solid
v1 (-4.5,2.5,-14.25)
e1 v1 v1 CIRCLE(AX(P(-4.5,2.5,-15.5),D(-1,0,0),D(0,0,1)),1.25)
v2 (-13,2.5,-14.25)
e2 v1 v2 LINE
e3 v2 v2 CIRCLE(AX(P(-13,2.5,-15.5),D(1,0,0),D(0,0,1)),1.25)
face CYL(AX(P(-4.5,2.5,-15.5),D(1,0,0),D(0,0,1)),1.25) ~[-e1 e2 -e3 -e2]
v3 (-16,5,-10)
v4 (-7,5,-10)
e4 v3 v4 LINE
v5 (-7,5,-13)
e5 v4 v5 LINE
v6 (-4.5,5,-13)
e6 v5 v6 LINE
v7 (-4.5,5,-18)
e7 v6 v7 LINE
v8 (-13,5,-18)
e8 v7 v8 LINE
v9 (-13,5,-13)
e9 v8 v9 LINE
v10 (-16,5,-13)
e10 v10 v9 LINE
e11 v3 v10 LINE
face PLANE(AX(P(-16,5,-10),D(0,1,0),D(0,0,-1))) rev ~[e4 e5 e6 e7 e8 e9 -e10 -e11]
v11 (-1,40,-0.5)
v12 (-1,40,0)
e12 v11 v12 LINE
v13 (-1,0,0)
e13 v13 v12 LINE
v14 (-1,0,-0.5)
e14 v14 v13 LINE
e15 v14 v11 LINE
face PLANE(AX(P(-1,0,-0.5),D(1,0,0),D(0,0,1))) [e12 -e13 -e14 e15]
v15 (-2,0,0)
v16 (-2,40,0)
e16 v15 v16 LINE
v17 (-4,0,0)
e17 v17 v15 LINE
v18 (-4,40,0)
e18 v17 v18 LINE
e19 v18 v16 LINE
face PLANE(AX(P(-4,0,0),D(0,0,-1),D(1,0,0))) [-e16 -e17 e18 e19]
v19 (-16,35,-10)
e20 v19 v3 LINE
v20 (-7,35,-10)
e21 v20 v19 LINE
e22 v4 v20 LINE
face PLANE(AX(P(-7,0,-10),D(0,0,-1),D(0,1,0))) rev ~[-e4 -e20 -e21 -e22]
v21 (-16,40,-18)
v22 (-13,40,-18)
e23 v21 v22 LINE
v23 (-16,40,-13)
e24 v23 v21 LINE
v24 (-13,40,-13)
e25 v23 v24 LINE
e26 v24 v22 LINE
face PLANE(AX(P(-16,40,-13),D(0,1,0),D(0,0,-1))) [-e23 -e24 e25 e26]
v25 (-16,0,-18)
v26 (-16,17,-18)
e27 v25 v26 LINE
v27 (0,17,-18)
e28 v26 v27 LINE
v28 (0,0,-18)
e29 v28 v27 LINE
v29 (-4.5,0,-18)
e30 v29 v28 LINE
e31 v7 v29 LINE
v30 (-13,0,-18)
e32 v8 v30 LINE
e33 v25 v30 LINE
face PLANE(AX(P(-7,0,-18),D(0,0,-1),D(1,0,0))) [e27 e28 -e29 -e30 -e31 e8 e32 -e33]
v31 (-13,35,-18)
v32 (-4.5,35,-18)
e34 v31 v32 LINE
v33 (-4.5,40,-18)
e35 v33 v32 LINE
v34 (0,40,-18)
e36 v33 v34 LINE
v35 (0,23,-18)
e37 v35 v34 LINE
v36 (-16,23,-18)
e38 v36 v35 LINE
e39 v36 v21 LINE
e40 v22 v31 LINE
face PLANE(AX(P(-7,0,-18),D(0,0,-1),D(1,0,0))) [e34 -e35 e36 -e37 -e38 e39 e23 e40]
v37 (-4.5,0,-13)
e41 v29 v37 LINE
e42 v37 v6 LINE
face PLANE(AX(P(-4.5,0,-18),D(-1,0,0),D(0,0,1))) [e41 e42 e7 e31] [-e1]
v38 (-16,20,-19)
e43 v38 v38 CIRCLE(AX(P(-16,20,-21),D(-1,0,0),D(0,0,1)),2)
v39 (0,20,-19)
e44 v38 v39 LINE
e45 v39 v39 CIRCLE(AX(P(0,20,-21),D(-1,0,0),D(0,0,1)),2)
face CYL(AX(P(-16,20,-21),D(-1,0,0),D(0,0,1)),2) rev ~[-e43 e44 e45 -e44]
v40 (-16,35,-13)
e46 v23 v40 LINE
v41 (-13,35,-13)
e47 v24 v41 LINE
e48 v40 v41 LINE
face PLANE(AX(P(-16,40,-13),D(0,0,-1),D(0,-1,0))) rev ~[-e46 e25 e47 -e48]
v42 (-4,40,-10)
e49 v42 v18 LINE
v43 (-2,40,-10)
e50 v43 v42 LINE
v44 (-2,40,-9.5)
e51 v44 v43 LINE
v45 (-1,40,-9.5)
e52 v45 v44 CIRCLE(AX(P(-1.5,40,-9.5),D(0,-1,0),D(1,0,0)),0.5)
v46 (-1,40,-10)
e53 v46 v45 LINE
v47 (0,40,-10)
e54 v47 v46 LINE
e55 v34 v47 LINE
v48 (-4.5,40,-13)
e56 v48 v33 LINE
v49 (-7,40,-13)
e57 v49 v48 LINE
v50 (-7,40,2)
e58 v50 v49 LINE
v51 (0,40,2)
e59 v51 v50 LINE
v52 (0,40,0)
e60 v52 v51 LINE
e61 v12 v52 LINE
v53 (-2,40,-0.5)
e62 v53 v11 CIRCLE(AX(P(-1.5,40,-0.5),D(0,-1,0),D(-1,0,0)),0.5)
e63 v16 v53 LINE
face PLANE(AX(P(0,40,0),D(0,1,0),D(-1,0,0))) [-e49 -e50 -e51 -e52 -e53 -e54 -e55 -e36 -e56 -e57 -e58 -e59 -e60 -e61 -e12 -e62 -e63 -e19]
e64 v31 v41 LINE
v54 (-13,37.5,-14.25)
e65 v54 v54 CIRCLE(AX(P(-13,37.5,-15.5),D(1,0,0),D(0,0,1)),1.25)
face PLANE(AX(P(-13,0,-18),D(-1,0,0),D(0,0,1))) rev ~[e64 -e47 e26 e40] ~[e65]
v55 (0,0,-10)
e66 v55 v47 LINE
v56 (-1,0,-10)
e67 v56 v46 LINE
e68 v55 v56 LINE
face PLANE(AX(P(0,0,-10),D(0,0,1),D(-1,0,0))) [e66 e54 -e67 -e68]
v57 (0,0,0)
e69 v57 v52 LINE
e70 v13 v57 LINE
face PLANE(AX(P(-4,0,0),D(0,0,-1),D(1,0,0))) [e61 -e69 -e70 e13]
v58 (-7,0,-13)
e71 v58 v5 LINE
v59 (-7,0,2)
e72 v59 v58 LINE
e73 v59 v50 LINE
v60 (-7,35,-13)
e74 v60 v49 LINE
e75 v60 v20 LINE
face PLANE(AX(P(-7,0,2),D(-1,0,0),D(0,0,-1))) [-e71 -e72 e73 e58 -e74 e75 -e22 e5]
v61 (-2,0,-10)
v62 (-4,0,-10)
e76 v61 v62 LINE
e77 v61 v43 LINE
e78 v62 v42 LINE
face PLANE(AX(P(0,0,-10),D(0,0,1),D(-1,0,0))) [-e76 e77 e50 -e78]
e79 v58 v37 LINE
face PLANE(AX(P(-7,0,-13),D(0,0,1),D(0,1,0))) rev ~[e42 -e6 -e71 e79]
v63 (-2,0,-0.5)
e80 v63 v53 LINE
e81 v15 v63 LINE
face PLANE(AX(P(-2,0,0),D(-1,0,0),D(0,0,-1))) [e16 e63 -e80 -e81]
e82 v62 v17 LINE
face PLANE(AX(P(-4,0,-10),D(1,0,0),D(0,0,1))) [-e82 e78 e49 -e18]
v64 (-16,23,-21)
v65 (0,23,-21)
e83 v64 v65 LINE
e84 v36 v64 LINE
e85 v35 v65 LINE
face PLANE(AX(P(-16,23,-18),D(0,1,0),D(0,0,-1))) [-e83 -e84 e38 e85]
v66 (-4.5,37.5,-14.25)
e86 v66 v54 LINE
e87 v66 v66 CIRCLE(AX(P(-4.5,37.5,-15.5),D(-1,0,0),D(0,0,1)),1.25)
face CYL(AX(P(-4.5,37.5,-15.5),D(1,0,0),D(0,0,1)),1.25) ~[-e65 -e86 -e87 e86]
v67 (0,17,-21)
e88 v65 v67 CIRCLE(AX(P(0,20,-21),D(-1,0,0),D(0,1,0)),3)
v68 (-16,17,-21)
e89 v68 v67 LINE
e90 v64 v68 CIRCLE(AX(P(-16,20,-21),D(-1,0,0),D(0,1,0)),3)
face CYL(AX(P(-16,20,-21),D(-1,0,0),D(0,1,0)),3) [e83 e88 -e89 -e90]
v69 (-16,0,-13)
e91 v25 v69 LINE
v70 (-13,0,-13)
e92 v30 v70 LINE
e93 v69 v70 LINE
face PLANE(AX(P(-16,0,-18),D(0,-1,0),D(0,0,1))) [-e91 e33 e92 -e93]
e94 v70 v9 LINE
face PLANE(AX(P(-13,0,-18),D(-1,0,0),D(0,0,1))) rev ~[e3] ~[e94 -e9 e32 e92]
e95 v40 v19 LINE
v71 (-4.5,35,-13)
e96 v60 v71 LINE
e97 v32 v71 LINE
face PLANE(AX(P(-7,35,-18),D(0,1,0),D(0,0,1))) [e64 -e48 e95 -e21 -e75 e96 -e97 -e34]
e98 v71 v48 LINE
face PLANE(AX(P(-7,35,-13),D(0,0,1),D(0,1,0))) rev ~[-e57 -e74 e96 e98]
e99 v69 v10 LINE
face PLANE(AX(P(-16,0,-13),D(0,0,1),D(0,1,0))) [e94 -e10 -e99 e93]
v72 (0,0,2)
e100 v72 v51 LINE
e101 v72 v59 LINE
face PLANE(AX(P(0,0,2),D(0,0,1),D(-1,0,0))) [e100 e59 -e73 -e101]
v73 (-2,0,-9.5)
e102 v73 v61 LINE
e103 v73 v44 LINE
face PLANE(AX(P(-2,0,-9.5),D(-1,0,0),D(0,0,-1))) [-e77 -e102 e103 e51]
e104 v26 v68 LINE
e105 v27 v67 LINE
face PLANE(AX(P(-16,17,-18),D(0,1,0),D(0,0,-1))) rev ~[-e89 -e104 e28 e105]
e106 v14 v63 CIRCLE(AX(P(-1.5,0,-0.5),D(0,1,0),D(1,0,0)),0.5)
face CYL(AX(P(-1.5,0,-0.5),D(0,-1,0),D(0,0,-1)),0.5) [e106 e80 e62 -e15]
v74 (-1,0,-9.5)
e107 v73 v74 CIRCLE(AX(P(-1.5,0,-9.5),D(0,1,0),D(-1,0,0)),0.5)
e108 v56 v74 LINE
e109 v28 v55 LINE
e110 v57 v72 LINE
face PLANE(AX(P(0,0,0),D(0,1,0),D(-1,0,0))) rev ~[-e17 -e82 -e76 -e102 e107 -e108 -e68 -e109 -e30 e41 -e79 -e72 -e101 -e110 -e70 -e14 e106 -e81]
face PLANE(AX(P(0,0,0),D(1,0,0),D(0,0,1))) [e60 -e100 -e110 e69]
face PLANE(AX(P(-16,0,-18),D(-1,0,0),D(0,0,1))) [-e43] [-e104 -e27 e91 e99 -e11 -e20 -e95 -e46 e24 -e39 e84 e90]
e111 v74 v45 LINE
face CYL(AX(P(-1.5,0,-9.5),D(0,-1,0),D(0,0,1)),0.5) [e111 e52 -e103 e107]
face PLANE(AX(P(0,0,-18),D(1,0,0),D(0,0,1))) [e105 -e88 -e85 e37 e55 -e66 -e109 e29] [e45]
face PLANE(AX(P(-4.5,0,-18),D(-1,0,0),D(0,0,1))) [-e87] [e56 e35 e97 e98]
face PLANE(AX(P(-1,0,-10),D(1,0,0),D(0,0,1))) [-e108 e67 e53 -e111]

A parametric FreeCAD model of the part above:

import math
import FreeCAD as App
import Part
import Sketcher
from FreeCAD import Vector
Q = App.Units.Quantity

doc = App.newDocument("Part")
body = doc.addObject("PartDesign::Body", "Body")

sketch1 = doc.addObject("Sketcher::SketchObject", "Sketch")
body.addObject(sketch1)
sketch1.AttachmentSupport = (doc.XZ_Plane, [""])
sketch1.MapMode = "FlatFace"
sketch1.addGeometry([
    Part.LineSegment(Vector(0, 2, 0), Vector(0, 0, 0)),
    Part.LineSegment(Vector(0, 0, 0), Vector(-4, 0, 0)),
    Part.LineSegment(Vector(-4, 0, 0), Vector(-4, -10, 0)),
    Part.LineSegment(Vector(-4, -10, 0), Vector(0, -10, 0)),
    Part.LineSegment(Vector(0, -10, 0), Vector(0, -18, 0)),
    Part.LineSegment(Vector(0, -18, 0), Vector(-7, -18, 0)),
    Part.LineSegment(Vector(-7, -18, 0), Vector(-7, 2, 0)),
    Part.LineSegment(Vector(-7, 2, 0), Vector(0, 2, 0)),
], False)
sketch1.addConstraint([
    Sketcher.Constraint("Coincident", 0, 2, 1, 1),
    Sketcher.Constraint("Coincident", 1, 2, 2, 1),
    Sketcher.Constraint("Coincident", 2, 2, 3, 1),
    Sketcher.Constraint("Coincident", 3, 2, 4, 1),
    Sketcher.Constraint("Coincident", 4, 2, 5, 1),
    Sketcher.Constraint("Coincident", 5, 2, 6, 1),
    Sketcher.Constraint("Coincident", 6, 2, 7, 1),
    Sketcher.Constraint("Coincident", 7, 2, 0, 1),
    Sketcher.Constraint("Vertical", 0),
    Sketcher.Constraint("Horizontal", 1),
    Sketcher.Constraint("Vertical", 2),
    Sketcher.Constraint("Horizontal", 3),
    Sketcher.Constraint("Vertical", 4),
    Sketcher.Constraint("Horizontal", 5),
    Sketcher.Constraint("Vertical", 6),
    Sketcher.Constraint("Horizontal", 7),
    Sketcher.Constraint("Coincident", 0, 2, -1, 1),
    Sketcher.Constraint("PointOnObject", 3, 2, -2),
    Sketcher.Constraint("DistanceX", 1, 2, 1, 1, Q("4 mm")),
    Sketcher.Constraint("DistanceX", 5, 2, 5, 1, Q("7 mm")),
    Sketcher.Constraint("DistanceY", 0, 2, 0, 1, Q("2 mm")),
    Sketcher.Constraint("DistanceY", 2, 2, 2, 1, Q("10 mm")),
    Sketcher.Constraint("DistanceY", 4, 2, 4, 1, Q("8 mm")),
])
pad1 = doc.addObject("PartDesign::Pad", "Pad")
body.addObject(pad1)
pad1.Profile = sketch1
pad1.Length = 40
pad1.Reversed = True

sketch2 = doc.addObject("Sketcher::SketchObject", "Sketch001")
body.addObject(sketch2)
sketch2.AttachmentSupport = (doc.XZ_Plane, [""])
sketch2.MapMode = "FlatFace"
sketch2.addGeometry([
    Part.LineSegment(Vector(-2, -10, 0), Vector(-1, -10, 0)),
    Part.LineSegment(Vector(-1, -10, 0), Vector(-1, -9.5, 0)),
    Part.ArcOfCircle(Part.Circle(Vector(-1.5, -9.5, 0), Vector(0, 0, 1), 0.5), math.radians(0), math.radians(180)),
    Part.LineSegment(Vector(-2, -9.5, 0), Vector(-2, -10, 0)),
    Part.ArcOfCircle(Part.Circle(Vector(-1.5, -0.5, 0), Vector(0, 0, 1), 0.5), math.radians(180), math.radians(360)),
    Part.LineSegment(Vector(-1, -0.5, 0), Vector(-1, 0, 0)),
    Part.LineSegment(Vector(-1, 0, 0), Vector(-2, 0, 0)),
    Part.LineSegment(Vector(-2, 0, 0), Vector(-2, -0.5, 0)),
], False)
sketch2.addConstraint([
    Sketcher.Constraint("Coincident", 0, 2, 1, 1),
    Sketcher.Constraint("Tangent", 1, 2, 2, 1),
    Sketcher.Constraint("Tangent", 2, 2, 3, 1),
    Sketcher.Constraint("Coincident", 3, 2, 0, 1),
    Sketcher.Constraint("Tangent", 4, 2, 5, 1),
    Sketcher.Constraint("Coincident", 5, 2, 6, 1),
    Sketcher.Constraint("Coincident", 6, 2, 7, 1),
    Sketcher.Constraint("Tangent", 7, 2, 4, 1),
    Sketcher.Constraint("Horizontal", 0),
    Sketcher.Constraint("Vertical", 1),
    Sketcher.Constraint("Vertical", 3),
    Sketcher.Constraint("Vertical", 5),
    Sketcher.Constraint("Horizontal", 6),
    Sketcher.Constraint("Vertical", 7),
    Sketcher.Constraint("Equal", 2, 4),
    Sketcher.Constraint("PointOnObject", 5, 2, -1),
    Sketcher.Constraint("Vertical", 2, 3, 4, 3),
    Sketcher.Constraint("Equal", 3, 5),
    Sketcher.Constraint("Radius", 2, Q("0.5 mm")),
    Sketcher.Constraint("DistanceY", 1, 1, 1, 2, Q("0.5 mm")),
    Sketcher.Constraint("DistanceX", 0, 2, -1, 1, Q("1 mm")),
    Sketcher.Constraint("DistanceY", 0, 2, -1, 1, Q("10 mm")),
])
pad2 = doc.addObject("PartDesign::Pad", "Pad001")
body.addObject(pad2)
pad2.Profile = sketch2
pad2.Length = 40
pad2.Reversed = True

sketch3 = doc.addObject("Sketcher::SketchObject", "Sketch002")
body.addObject(sketch3)
sketch3.AttachmentSupport = (doc.YZ_Plane, [""])
sketch3.MapMode = "FlatFace"
sketch3.AttachmentOffset = App.Placement(Vector(0, 0, -7), App.Rotation())
sketch3.addGeometry([
    Part.LineSegment(Vector(0, -18, 0), Vector(0, -10, 0)),
    Part.LineSegment(Vector(0, -10, 0), Vector(35, -10, 0)),
    Part.LineSegment(Vector(35, -10, 0), Vector(35, -18, 0)),
    Part.LineSegment(Vector(35, -18, 0), Vector(0, -18, 0)),
], False)
sketch3.addConstraint([
    Sketcher.Constraint("Coincident", 0, 2, 1, 1),
    Sketcher.Constraint("Coincident", 1, 2, 2, 1),
    Sketcher.Constraint("Coincident", 2, 2, 3, 1),
    Sketcher.Constraint("Coincident", 3, 2, 0, 1),
    Sketcher.Constraint("Vertical", 0),
    Sketcher.Constraint("Horizontal", 1),
    Sketcher.Constraint("Vertical", 2),
    Sketcher.Constraint("Horizontal", 3),
    Sketcher.Constraint("PointOnObject", 0, 2, -2),
    Sketcher.Constraint("DistanceX", 1, 1, 1, 2, Q("35 mm")),
    Sketcher.Constraint("DistanceY", 0, 1, 0, 2, Q("8 mm")),
    Sketcher.Constraint("DistanceY", 0, 2, -1, 1, Q("10 mm")),
])
pad3 = doc.addObject("PartDesign::Pad", "Pad002")
body.addObject(pad3)
pad3.Profile = sketch3
pad3.Length = 9
pad3.Reversed = True

sketch4 = doc.addObject("Sketcher::SketchObject", "Sketch003")
body.addObject(sketch4)
sketch4.AttachmentSupport = (doc.YZ_Plane, [""])
sketch4.MapMode = "FlatFace"
sketch4.AttachmentOffset = App.Placement(Vector(0, 0, -16), App.Rotation())
sketch4.addGeometry([
    Part.LineSegment(Vector(17, -21, 0), Vector(17, -18, 0)),
    Part.LineSegment(Vector(17, -18, 0), Vector(23, -18, 0)),
    Part.LineSegment(Vector(23, -18, 0), Vector(23, -21, 0)),
    Part.ArcOfCircle(Part.Circle(Vector(20, -21, 0), Vector(0, 0, 1), 3), math.radians(180), math.radians(360)),
    Part.Circle(Vector(20, -21, 0), Vector(0, 0, 1), 2),
], False)
sketch4.addConstraint([
    Sketcher.Constraint("Coincident", 0, 2, 1, 1),
    Sketcher.Constraint("Coincident", 1, 2, 2, 1),
    Sketcher.Constraint("Tangent", 2, 2, 3, 2),
    Sketcher.Constraint("Tangent", 3, 1, 0, 1),
    Sketcher.Constraint("Vertical", 0),
    Sketcher.Constraint("Horizontal", 1),
    Sketcher.Constraint("Vertical", 2),
    Sketcher.Constraint("Coincident", 4, 3, 3, 3),
    Sketcher.Constraint("Diameter", 4, Q("4 mm")),
    Sketcher.Constraint("Radius", 3, Q("3 mm")),
    Sketcher.Constraint("DistanceY", 0, 1, 0, 2, Q("3 mm")),
    Sketcher.Constraint("DistanceX", -1, 1, 0, 2, Q("17 mm")),
    Sketcher.Constraint("DistanceY", 3, 3, -1, 1, Q("21 mm")),
])
pad4 = doc.addObject("PartDesign::Pad", "Pad003")
body.addObject(pad4)
pad4.Profile = sketch4
pad4.Length = 16

sketch5 = doc.addObject("Sketcher::SketchObject", "Sketch004")
body.addObject(sketch5)
sketch5.AttachmentSupport = (doc.YZ_Plane, [""])
sketch5.MapMode = "FlatFace"
sketch5.AttachmentOffset = App.Placement(Vector(0, 0, -7), App.Rotation())
sketch5.addGeometry([
    Part.LineSegment(Vector(5, -18, 0), Vector(0, -18, 0)),
    Part.LineSegment(Vector(0, -18, 0), Vector(0, -13, 0)),
    Part.LineSegment(Vector(0, -13, 0), Vector(5, -13, 0)),
    Part.LineSegment(Vector(5, -13, 0), Vector(5, -18, 0)),
    Part.LineSegment(Vector(40, -18, 0), Vector(35, -18, 0)),
    Part.LineSegment(Vector(35, -18, 0), Vector(35, -13, 0)),
    Part.LineSegment(Vector(35, -13, 0), Vector(40, -13, 0)),
    Part.LineSegment(Vector(40, -13, 0), Vector(40, -18, 0)),
], False)
sketch5.addConstraint([
    Sketcher.Constraint("Coincident", 0, 2, 1, 1),
    Sketcher.Constraint("Coincident", 1, 2, 2, 1),
    Sketcher.Constraint("Coincident", 2, 2, 3, 1),
    Sketcher.Constraint("Coincident", 3, 2, 0, 1),
    Sketcher.Constraint("Coincident", 4, 2, 5, 1),
    Sketcher.Constraint("Coincident", 5, 2, 6, 1),
    Sketcher.Constraint("Coincident", 6, 2, 7, 1),
    Sketcher.Constraint("Coincident", 7, 2, 4, 1),
    Sketcher.Constraint("Horizontal", 0),
    Sketcher.Constraint("Vertical", 1),
    Sketcher.Constraint("Horizontal", 2),
    Sketcher.Constraint("Vertical", 3),
    Sketcher.Constraint("Horizontal", 4),
    Sketcher.Constraint("Vertical", 5),
    Sketcher.Constraint("Horizontal", 6),
    Sketcher.Constraint("Vertical", 7),
    Sketcher.Constraint("PointOnObject", 0, 2, -2),
    Sketcher.Constraint("Horizontal", 3, 2, 4, 2),
    Sketcher.Constraint("Horizontal", 2, 2, 5, 2),
    Sketcher.Constraint("Equal", 2, 4),
    Sketcher.Constraint("Equal", 6, 1),
    Sketcher.Constraint("DistanceX", 0, 2, 0, 1, Q("5 mm")),
    Sketcher.Constraint("DistanceY", 0, 2, -1, 1, Q("18 mm")),
    Sketcher.Constraint("DistanceX", -1, 1, 4, 2, Q("35 mm")),
])
pocket1 = doc.addObject("PartDesign::Pocket", "Pocket")
body.addObject(pocket1)
pocket1.Profile = sketch5
pocket1.Length = 2.5
pocket1.Reversed = True

sketch6 = doc.addObject("Sketcher::SketchObject", "Sketch005")
body.addObject(sketch6)
sketch6.AttachmentSupport = (doc.YZ_Plane, [""])
sketch6.MapMode = "FlatFace"
sketch6.AttachmentOffset = App.Placement(Vector(0, 0, -16), App.Rotation())
sketch6.addGeometry([
    Part.LineSegment(Vector(5, -18, 0), Vector(0, -18, 0)),
    Part.LineSegment(Vector(0, -18, 0), Vector(0, -10, 0)),
    Part.LineSegment(Vector(0, -10, 0), Vector(5, -10, 0)),
    Part.LineSegment(Vector(5, -10, 0), Vector(5, -18, 0)),
], False)
sketch6.addConstraint([
    Sketcher.Constraint("Coincident", 0, 2, 1, 1),
    Sketcher.Constraint("Coincident", 1, 2, 2, 1),
    Sketcher.Constraint("Coincident", 2, 2, 3, 1),
    Sketcher.Constraint("Coincident", 3, 2, 0, 1),
    Sketcher.Constraint("Horizontal", 0),
    Sketcher.Constraint("Vertical", 1),
    Sketcher.Constraint("Horizontal", 2),
    Sketcher.Constraint("Vertical", 3),
    Sketcher.Constraint("PointOnObject", 0, 2, -2),
    Sketcher.Constraint("DistanceX", 0, 2, 0, 1, Q("5 mm")),
    Sketcher.Constraint("DistanceY", 1, 1, 1, 2, Q("8 mm")),
    Sketcher.Constraint("DistanceY", 0, 2, -1, 1, Q("18 mm")),
])
pocket2 = doc.addObject("PartDesign::Pocket", "Pocket001")
body.addObject(pocket2)
pocket2.Profile = sketch6
pocket2.Length = 9
pocket2.Reversed = True

sketch7 = doc.addObject("Sketcher::SketchObject", "Sketch006")
body.addObject(sketch7)
sketch7.AttachmentSupport = (doc.YZ_Plane, [""])
sketch7.MapMode = "FlatFace"
sketch7.AttachmentOffset = App.Placement(Vector(0, 0, -4.5), App.Rotation())
sketch7.addGeometry([
    Part.Circle(Vector(2.5, -15.5, 0), Vector(0, 0, 1), 1.2),
    Part.Circle(Vector(37.5, -15.5, 0), Vector(0, 0, 1), 1.2),
], False)
sketch7.addConstraint([
    Sketcher.Constraint("Equal", 0, 1),
    Sketcher.Constraint("Horizontal", 0, 3, 1, 3),
    Sketcher.Constraint("Diameter", 0, Q("2.5 mm")),
    Sketcher.Constraint("DistanceX", -1, 1, 0, 3, Q("2.5 mm")),
    Sketcher.Constraint("DistanceX", 0, 3, 1, 3, Q("35 mm")),
    Sketcher.Constraint("DistanceY", 0, 3, -1, 1, Q("15.5 mm")),
])
pad5 = doc.addObject("PartDesign::Pad", "Pad004")
body.addObject(pad5)
pad5.Profile = sketch7
pad5.Length = 11.5
pad5.Reversed = True

sketch8 = doc.addObject("Sketcher::SketchObject", "Sketch007")
body.addObject(sketch8)
sketch8.AttachmentSupport = (doc.YZ_Plane, [""])
sketch8.MapMode = "FlatFace"
sketch8.AttachmentOffset = App.Placement(Vector(0, 0, -16), App.Rotation())
sketch8.addGeometry([
    Part.LineSegment(Vector(40, -18, 0), Vector(35, -18, 0)),
    Part.LineSegment(Vector(35, -18, 0), Vector(35, -13, 0)),
    Part.LineSegment(Vector(35, -13, 0), Vector(40, -13, 0)),
    Part.LineSegment(Vector(40, -13, 0), Vector(40, -18, 0)),
    Part.LineSegment(Vector(5, -13, 0), Vector(5, -18, 0)),
    Part.LineSegment(Vector(5, -18, 0), Vector(0, -18, 0)),
    Part.LineSegment(Vector(0, -18, 0), Vector(0, -13, 0)),
    Part.LineSegment(Vector(0, -13, 0), Vector(5, -13, 0)),
], False)
sketch8.addConstraint([
    Sketcher.Constraint("Coincident", 0, 2, 1, 1),
    Sketcher.Constraint("Coincident", 1, 2, 2, 1),
    Sketcher.Constraint("Coincident", 2, 2, 3, 1),
    Sketcher.Constraint("Coincident", 3, 2, 0, 1),
    Sketcher.Constraint("Coincident", 4, 2, 5, 1),
    Sketcher.Constraint("Coincident", 5, 2, 6, 1),
    Sketcher.Constraint("Coincident", 6, 2, 7, 1),
    Sketcher.Constraint("Coincident", 7, 2, 4, 1),
    Sketcher.Constraint("Horizontal", 0),
    Sketcher.Constraint("Vertical", 1),
    Sketcher.Constraint("Horizontal", 2),
    Sketcher.Constraint("Vertical", 3),
    Sketcher.Constraint("Vertical", 4),
    Sketcher.Constraint("Horizontal", 5),
    Sketcher.Constraint("Vertical", 6),
    Sketcher.Constraint("Horizontal", 7),
    Sketcher.Constraint("PointOnObject", 5, 2, -2),
    Sketcher.Constraint("Horizontal", 3, 2, 4, 2),
    Sketcher.Constraint("Horizontal", 2, 2, 6, 2),
    Sketcher.Constraint("Equal", 2, 5),
    Sketcher.Constraint("Equal", 7, 1),
    Sketcher.Constraint("DistanceX", 0, 2, 0, 1, Q("5 mm")),
    Sketcher.Constraint("DistanceX", -1, 1, 0, 2, Q("35 mm")),
    Sketcher.Constraint("DistanceY", 0, 2, -1, 1, Q("18 mm")),
])
pad6 = doc.addObject("PartDesign::Pad", "Pad005")
body.addObject(pad6)
pad6.Profile = sketch8
pad6.Length = 3

doc.recompute()
